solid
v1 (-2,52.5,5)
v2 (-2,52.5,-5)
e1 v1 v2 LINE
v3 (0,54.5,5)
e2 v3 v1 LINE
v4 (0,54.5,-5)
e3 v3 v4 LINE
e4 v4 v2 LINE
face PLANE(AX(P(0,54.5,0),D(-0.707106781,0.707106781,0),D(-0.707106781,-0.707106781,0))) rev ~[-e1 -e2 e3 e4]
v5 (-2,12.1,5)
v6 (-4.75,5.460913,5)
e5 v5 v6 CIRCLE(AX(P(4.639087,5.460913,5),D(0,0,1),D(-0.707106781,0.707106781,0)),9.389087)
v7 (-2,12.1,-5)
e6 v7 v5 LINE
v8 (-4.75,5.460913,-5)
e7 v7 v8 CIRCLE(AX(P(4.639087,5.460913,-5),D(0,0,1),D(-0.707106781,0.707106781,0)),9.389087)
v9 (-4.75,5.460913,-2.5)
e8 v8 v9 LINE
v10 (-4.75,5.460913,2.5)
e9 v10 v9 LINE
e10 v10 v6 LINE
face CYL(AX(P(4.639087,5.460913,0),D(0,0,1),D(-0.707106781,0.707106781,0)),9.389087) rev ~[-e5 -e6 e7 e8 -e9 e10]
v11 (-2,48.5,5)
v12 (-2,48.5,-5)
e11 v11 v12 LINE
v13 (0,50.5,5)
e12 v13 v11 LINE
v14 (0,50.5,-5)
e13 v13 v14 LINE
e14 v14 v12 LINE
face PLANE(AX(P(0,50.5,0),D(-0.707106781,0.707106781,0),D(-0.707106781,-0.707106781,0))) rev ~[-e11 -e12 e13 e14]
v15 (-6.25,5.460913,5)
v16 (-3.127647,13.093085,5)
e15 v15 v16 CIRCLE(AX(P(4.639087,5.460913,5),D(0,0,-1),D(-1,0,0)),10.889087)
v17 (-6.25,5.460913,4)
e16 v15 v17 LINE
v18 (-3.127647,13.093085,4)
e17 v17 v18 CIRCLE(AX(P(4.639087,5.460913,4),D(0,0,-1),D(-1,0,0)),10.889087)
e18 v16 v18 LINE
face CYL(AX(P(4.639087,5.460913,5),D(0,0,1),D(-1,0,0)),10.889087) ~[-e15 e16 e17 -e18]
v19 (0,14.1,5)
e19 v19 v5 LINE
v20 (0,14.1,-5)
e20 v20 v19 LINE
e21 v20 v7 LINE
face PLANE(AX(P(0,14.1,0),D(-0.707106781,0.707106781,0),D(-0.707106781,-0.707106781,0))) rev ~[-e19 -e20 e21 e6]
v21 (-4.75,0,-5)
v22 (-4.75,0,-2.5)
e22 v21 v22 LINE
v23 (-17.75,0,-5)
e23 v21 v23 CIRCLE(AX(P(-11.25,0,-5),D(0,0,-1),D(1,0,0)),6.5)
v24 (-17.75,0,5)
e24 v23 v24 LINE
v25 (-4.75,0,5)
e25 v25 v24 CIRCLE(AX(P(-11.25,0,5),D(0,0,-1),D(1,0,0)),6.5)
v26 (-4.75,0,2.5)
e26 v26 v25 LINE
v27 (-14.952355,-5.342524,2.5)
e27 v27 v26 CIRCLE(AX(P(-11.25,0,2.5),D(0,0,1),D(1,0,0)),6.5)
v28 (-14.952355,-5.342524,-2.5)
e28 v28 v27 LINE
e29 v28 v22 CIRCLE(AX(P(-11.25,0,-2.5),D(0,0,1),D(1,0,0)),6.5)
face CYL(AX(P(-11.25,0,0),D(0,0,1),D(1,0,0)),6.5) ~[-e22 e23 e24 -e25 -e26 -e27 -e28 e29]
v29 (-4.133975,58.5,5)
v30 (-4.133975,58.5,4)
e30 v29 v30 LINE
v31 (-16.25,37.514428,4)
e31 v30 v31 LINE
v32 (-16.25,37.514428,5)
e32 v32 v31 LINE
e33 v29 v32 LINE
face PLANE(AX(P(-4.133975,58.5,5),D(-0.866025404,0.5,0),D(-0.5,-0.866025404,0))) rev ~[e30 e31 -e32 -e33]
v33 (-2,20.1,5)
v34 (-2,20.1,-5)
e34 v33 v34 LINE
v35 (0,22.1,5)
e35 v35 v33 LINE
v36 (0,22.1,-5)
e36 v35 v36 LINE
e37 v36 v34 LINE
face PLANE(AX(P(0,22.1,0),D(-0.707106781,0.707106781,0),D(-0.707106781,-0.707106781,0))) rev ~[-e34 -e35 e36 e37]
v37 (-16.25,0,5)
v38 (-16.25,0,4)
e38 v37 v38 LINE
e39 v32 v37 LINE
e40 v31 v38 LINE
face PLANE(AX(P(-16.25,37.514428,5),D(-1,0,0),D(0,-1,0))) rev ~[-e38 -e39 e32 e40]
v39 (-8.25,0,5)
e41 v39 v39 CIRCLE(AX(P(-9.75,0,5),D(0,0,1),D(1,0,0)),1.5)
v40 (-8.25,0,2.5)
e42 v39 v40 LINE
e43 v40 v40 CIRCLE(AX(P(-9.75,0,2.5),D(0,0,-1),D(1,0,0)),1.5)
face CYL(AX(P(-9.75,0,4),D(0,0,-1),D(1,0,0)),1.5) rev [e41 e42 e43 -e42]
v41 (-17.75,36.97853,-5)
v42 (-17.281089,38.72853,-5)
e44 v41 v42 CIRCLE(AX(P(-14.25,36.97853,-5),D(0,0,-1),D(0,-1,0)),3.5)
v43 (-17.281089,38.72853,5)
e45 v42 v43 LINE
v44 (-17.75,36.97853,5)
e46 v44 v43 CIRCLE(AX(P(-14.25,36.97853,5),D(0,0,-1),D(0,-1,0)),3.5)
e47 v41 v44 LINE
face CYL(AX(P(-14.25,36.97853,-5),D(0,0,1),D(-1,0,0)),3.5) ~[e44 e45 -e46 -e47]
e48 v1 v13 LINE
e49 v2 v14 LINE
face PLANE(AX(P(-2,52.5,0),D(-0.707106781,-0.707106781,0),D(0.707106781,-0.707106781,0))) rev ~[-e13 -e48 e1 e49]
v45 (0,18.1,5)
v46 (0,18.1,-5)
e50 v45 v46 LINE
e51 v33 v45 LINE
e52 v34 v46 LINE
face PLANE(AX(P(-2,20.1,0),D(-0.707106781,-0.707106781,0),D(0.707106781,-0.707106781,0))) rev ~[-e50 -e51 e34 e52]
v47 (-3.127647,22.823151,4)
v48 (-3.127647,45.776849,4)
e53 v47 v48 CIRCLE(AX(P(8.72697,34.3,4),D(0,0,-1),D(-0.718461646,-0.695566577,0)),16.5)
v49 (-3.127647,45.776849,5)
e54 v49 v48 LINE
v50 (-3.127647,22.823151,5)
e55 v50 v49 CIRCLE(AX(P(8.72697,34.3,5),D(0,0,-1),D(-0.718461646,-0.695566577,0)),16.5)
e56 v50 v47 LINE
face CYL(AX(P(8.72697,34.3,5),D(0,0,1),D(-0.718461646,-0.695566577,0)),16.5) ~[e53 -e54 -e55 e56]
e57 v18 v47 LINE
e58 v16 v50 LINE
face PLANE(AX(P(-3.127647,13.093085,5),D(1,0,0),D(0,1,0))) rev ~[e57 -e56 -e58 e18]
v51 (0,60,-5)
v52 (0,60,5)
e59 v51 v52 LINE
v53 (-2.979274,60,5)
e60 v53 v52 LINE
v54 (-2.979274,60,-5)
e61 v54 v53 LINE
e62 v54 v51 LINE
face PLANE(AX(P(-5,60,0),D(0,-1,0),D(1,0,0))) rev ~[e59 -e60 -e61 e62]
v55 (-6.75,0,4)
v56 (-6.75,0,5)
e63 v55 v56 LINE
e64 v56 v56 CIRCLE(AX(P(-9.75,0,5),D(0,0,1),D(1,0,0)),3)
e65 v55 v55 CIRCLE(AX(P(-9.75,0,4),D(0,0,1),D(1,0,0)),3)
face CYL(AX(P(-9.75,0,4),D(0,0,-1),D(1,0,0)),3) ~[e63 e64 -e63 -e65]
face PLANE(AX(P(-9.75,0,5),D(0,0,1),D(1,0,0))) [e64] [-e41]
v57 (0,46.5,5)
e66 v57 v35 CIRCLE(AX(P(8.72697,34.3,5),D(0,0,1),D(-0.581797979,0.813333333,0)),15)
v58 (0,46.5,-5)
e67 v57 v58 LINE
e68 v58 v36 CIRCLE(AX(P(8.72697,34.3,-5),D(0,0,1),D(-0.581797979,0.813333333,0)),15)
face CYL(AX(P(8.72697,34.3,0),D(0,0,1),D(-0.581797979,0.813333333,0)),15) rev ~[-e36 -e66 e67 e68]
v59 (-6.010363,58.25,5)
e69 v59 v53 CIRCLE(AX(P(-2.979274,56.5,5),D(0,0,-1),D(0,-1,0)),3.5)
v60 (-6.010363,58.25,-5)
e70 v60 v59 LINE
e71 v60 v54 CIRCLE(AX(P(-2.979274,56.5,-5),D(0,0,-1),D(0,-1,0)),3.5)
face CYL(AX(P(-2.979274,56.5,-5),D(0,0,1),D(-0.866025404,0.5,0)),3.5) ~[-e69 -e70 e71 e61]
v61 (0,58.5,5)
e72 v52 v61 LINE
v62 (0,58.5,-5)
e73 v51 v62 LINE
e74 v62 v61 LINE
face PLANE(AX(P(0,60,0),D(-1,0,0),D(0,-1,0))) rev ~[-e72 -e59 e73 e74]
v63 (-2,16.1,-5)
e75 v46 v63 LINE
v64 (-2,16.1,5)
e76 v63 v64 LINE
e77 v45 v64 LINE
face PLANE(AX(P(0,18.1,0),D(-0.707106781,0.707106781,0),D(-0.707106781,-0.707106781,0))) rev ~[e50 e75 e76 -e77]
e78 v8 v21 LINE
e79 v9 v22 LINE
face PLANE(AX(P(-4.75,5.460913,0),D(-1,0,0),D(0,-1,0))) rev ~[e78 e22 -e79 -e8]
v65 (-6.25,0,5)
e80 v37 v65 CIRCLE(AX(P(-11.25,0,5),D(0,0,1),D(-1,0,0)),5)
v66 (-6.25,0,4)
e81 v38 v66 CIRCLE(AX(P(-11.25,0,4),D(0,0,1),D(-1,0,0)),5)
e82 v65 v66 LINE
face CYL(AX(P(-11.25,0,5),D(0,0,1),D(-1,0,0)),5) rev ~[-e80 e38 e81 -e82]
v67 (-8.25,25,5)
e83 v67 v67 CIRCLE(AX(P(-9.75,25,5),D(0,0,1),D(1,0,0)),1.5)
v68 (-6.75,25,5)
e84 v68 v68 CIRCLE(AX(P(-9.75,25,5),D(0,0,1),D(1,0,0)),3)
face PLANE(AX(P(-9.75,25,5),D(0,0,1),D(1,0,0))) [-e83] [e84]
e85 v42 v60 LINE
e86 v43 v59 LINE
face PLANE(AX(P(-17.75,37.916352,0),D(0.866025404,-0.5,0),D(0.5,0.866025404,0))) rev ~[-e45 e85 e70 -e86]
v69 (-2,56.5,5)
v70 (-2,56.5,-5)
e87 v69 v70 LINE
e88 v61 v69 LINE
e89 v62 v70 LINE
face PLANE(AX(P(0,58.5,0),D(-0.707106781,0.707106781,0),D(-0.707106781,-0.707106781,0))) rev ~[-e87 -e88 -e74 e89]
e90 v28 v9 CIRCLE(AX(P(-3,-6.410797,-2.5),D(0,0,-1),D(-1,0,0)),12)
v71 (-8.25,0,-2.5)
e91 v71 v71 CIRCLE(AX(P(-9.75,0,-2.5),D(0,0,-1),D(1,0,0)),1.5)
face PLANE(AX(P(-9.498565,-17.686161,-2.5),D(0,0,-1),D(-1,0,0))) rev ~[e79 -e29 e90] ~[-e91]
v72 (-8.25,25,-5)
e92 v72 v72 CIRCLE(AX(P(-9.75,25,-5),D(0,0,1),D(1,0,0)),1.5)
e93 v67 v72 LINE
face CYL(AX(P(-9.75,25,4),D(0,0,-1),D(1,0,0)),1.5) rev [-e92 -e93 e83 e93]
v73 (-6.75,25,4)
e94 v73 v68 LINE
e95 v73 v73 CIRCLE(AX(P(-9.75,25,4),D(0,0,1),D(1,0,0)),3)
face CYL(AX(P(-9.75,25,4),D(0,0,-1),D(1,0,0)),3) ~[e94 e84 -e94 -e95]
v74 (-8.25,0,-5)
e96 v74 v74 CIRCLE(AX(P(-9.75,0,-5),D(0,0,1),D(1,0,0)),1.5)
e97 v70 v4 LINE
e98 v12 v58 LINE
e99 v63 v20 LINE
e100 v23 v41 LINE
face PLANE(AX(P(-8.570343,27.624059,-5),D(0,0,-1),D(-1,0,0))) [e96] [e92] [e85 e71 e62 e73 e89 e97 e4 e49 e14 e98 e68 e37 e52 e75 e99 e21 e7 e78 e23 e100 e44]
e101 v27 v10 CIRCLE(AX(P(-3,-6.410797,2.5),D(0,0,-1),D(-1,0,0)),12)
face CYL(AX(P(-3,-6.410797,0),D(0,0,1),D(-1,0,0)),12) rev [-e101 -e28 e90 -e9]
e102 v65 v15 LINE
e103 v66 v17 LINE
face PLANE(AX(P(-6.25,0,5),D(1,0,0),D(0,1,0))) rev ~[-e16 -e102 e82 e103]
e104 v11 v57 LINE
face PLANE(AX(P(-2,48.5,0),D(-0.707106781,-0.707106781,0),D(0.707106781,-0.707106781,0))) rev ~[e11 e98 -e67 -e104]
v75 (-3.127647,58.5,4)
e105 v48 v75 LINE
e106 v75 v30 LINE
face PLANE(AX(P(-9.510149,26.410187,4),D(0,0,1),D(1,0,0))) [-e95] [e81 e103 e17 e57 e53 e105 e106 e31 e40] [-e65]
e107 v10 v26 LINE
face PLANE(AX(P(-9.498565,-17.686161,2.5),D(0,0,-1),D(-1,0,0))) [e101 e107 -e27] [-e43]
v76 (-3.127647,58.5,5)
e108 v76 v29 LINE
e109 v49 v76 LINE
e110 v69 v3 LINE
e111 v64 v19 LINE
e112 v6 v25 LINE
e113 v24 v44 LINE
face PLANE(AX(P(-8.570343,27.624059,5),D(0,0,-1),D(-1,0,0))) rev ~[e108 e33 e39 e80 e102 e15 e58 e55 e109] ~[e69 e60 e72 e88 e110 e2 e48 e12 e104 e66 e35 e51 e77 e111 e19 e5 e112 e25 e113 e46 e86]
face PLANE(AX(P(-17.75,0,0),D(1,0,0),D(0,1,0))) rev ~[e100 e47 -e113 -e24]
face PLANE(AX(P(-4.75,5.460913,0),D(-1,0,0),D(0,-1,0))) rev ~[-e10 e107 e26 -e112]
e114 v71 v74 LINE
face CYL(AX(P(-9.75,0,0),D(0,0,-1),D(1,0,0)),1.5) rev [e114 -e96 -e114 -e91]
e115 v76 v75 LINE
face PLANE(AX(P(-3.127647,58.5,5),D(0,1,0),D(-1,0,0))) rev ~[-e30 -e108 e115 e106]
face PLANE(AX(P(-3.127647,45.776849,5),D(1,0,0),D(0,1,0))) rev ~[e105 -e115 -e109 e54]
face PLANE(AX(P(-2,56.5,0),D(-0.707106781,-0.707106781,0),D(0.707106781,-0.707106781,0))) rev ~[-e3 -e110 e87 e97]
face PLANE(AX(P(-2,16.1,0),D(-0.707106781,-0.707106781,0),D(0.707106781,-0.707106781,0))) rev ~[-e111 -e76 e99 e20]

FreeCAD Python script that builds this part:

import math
import FreeCAD as App
import Part
import Sketcher
Q = App.Units.Quantity


def edges_at(feature, points):
    """Names of the edges that pass closest to the given points."""
    edges = feature.Shape.Edges
    near = lambda p: min(range(len(edges)), key=lambda i: edges[i].distToShape(Part.Vertex(*p))[0])
    return sorted({f"Edge{near(p) + 1}" for p in points})

doc = App.newDocument("Part")
body = doc.addObject("PartDesign::Body", "Body")

sketch1 = body.newObject("Sketcher::SketchObject", "Sketch")
sketch1.AttachmentSupport = (doc.getObject("XY_Plane"), [""])
sketch1.MapMode = "FlatFace"
sketch1.addGeometry([
    Part.LineSegment(App.Vector(-2, 56.5, 0), App.Vector(0, 58.5, 0)),
    Part.LineSegment(App.Vector(0, 58.5, 0), App.Vector(0, 60, 0)),
    Part.LineSegment(App.Vector(0, 60, 0), App.Vector(-5, 60, 0)),
    Part.LineSegment(App.Vector(-5, 60, 0), App.Vector(-17.8, 37.9, 0)),
    Part.LineSegment(App.Vector(-17.8, 37.9, 0), App.Vector(-17.8, 0, 0)),
    Part.ArcOfCircle(Part.Circle(App.Vector(-11.2, 0, 0), App.Vector(0, 0, 1), 6.5), math.radians(180), math.radians(360)),
    Part.LineSegment(App.Vector(-4.8, 0, 0), App.Vector(-4.8, 5.5, 0)),
    Part.ArcOfCircle(Part.Circle(App.Vector(4.6, 5.5, 0), App.Vector(0, 0, 1), 9.4), math.radians(135), math.radians(180)),
    Part.LineSegment(App.Vector(-2, 12.1, 0), App.Vector(0, 14.1, 0)),
    Part.LineSegment(App.Vector(0, 14.1, 0), App.Vector(-2, 16.1, 0)),
    Part.LineSegment(App.Vector(-2, 16.1, 0), App.Vector(0, 18.1, 0)),
    Part.LineSegment(App.Vector(0, 18.1, 0), App.Vector(-2, 20.1, 0)),
    Part.LineSegment(App.Vector(-2, 20.1, 0), App.Vector(0, 22.1, 0)),
    Part.ArcOfCircle(Part.Circle(App.Vector(8.7, 34.3, 0), App.Vector(0, 0, 1), 15), math.radians(126), math.radians(234)),
    Part.LineSegment(App.Vector(0, 46.5, 0), App.Vector(-2, 48.5, 0)),
    Part.LineSegment(App.Vector(-2, 48.5, 0), App.Vector(0, 50.5, 0)),
    Part.LineSegment(App.Vector(0, 50.5, 0), App.Vector(-2, 52.5, 0)),
    Part.LineSegment(App.Vector(-2, 52.5, 0), App.Vector(0, 54.5, 0)),
    Part.LineSegment(App.Vector(0, 54.5, 0), App.Vector(-2, 56.5, 0)),
    Part.Circle(App.Vector(-9.8, 0, 0), App.Vector(0, 0, 1), 1.5),
    Part.Circle(App.Vector(-9.8, 25, 0), App.Vector(0, 0, 1), 1.5),
], False)
sketch1.addConstraint([
    Sketcher.Constraint("Coincident", 0, 2, 1, 1),
    Sketcher.Constraint("Coincident", 1, 2, 2, 1),
    Sketcher.Constraint("Coincident", 2, 2, 3, 1),
    Sketcher.Constraint("Coincident", 3, 2, 4, 1),
    Sketcher.Constraint("Tangent", 4, 2, 5, 1),
    Sketcher.Constraint("Tangent", 5, 2, 6, 1),
    Sketcher.Constraint("Tangent", 6, 2, 7, 2),
    Sketcher.Constraint("Tangent", 7, 1, 8, 1),
    Sketcher.Constraint("Coincident", 8, 2, 9, 1),
    Sketcher.Constraint("Coincident", 9, 2, 10, 1),
    Sketcher.Constraint("Coincident", 10, 2, 11, 1),
    Sketcher.Constraint("Coincident", 11, 2, 12, 1),
    Sketcher.Constraint("Coincident", 12, 2, 13, 2),
    Sketcher.Constraint("Coincident", 13, 1, 14, 1),
    Sketcher.Constraint("Coincident", 14, 2, 15, 1),
    Sketcher.Constraint("Coincident", 15, 2, 16, 1),
    Sketcher.Constraint("Coincident", 16, 2, 17, 1),
    Sketcher.Constraint("Coincident", 17, 2, 18, 1),
    Sketcher.Constraint("Coincident", 18, 2, 0, 1),
    Sketcher.Constraint("Vertical", 1),
    Sketcher.Constraint("Horizontal", 2),
    Sketcher.Constraint("Vertical", 4),
    Sketcher.Constraint("Vertical", 6),
    Sketcher.Constraint("Equal", 19, 20),
    Sketcher.Constraint("PointOnObject", 5, 3, -1),
    Sketcher.Constraint("PointOnObject", 19, 3, -1),
    Sketcher.Constraint("PointOnObject", 0, 2, -2),
    Sketcher.Constraint("PointOnObject", 8, 2, -2),
    Sketcher.Constraint("PointOnObject", 10, 2, -2),
    Sketcher.Constraint("PointOnObject", 12, 2, -2),
    Sketcher.Constraint("PointOnObject", 13, 1, -2),
    Sketcher.Constraint("PointOnObject", 15, 2, -2),
    Sketcher.Constraint("PointOnObject", 17, 2, -2),
    Sketcher.Constraint("Parallel", 0, 8),
    Sketcher.Constraint("Perpendicular", 8, 9),
    Sketcher.Constraint("Perpendicular", 9, 10),
    Sketcher.Constraint("Perpendicular", 10, 11),
    Sketcher.Constraint("Perpendicular", 11, 12),
    Sketcher.Constraint("Perpendicular", 12, 14),
    Sketcher.Constraint("Perpendicular", 14, 15),
    Sketcher.Constraint("Perpendicular", 15, 16),
    Sketcher.Constraint("Perpendicular", 16, 17),
    Sketcher.Constraint("Perpendicular", 17, 18),
    Sketcher.Constraint("Vertical", 19, 3, 20, 3),
    Sketcher.Constraint("Vertical", 7, 1, 9, 2),
    Sketcher.Constraint("Vertical", 9, 2, 11, 2),
    Sketcher.Constraint("Vertical", 11, 2, 14, 2),
    Sketcher.Constraint("Vertical", 14, 2, 16, 2),
    Sketcher.Constraint("Vertical", 16, 2, 18, 2),
    Sketcher.Constraint("Equal", 8, 9),
    Sketcher.Constraint("Diameter", 19, Q("3 mm")),
    Sketcher.Constraint("Radius", 13, Q("15 mm")),
    Sketcher.Constraint("Radius", 5, Q("6.5 mm")),
    Sketcher.Constraint("DistanceX", 2, 2, 2, 1, Q("5 mm")),
    Sketcher.Constraint("Angle", 3, Q("-120 deg")),
    Sketcher.Constraint("DistanceY", 1, 1, 1, 2, Q("1.5 mm")),
    Sketcher.Constraint("DistanceY", -1, 1, 20, 3, Q("25 mm")),
    Sketcher.Constraint("DistanceY", -1, 1, 1, 2, Q("60 mm")),
    Sketcher.Constraint("DistanceX", 7, 1, -1, 1, Q("2 mm")),
    Sketcher.Constraint("DistanceX", 3, 2, 20, 3, Q("8 mm")),
    Sketcher.Constraint("Distance", 3, Q("25.5 mm")),
    Sketcher.Constraint("DistanceY", -1, 1, 13, 3, Q("34.3 mm")),
])
pad1 = body.newObject("PartDesign::Pad", "Pad")
pad1.Profile = sketch1
pad1.Length = 10
pad1.Midplane = True

sketch2 = body.newObject("Sketcher::SketchObject", "Sketch001")
sketch2.AttachmentSupport = (doc.getObject("XY_Plane"), [""])
sketch2.MapMode = "FlatFace"
sketch2.addGeometry([
    Part.LineSegment(App.Vector(-15, -6, 0), App.Vector(-15, -38, 0)),
    Part.LineSegment(App.Vector(-15, -38, 0), App.Vector(-5, -38, 0)),
    Part.LineSegment(App.Vector(-5, -38, 0), App.Vector(-5, 5, 0)),
    Part.ArcOfCircle(Part.Circle(App.Vector(-3, -6, 0), App.Vector(0, 0, 1), 12), math.radians(98), math.radians(180)),
], False)
sketch2.addConstraint([
    Sketcher.Constraint("Coincident", 0, 2, 1, 1),
    Sketcher.Constraint("Coincident", 1, 2, 2, 1),
    Sketcher.Constraint("Coincident", 2, 2, 3, 1),
    Sketcher.Constraint("Tangent", 3, 2, 0, 1),
    Sketcher.Constraint("Vertical", 0),
    Sketcher.Constraint("Horizontal", 1),
    Sketcher.Constraint("Vertical", 2),
    Sketcher.Constraint("Radius", 3, Q("12 mm")),
    Sketcher.Constraint("DistanceY", 0, 2, 0, 1, Q("32 mm")),
    Sketcher.Constraint("DistanceX", 3, 3, -1, 1, Q("3 mm")),
    Sketcher.Constraint("DistanceX", 1, 1, 1, 2, Q("10.25 mm")),
    Sketcher.Constraint("DistanceY", 3, 3, -1, 1, Q("6.410797 mm")),
])
pocket1 = body.newObject("PartDesign::Pocket", "Pocket")
pocket1.Profile = sketch2
pocket1.Length = 5
pocket1.Midplane = True

sketch3 = body.newObject("Sketcher::SketchObject", "Sketch002")
sketch3.AttachmentSupport = (doc.getObject("XY_Plane"), [""])
sketch3.MapMode = "FlatFace"
sketch3.AttachmentOffset = App.Placement(App.Vector(0, 0, 5), App.Rotation())
sketch3.addGeometry([
    Part.LineSegment(App.Vector(-3.1, 58.5, 0), App.Vector(-4.1, 58.5, 0)),
    Part.LineSegment(App.Vector(-4.1, 58.5, 0), App.Vector(-16.2, 37.5, 0)),
    Part.LineSegment(App.Vector(-16.2, 37.5, 0), App.Vector(-16.2, 0, 0)),
    Part.ArcOfCircle(Part.Circle(App.Vector(-11.2, 0, 0), App.Vector(0, 0, 1), 5), math.radians(180), math.radians(360)),
    Part.LineSegment(App.Vector(-6.2, 0, 0), App.Vector(-6.2, 5.5, 0)),
    Part.ArcOfCircle(Part.Circle(App.Vector(4.6, 5.5, 0), App.Vector(0, 0, 1), 10.9), math.radians(136), math.radians(180)),
    Part.LineSegment(App.Vector(-3.1, 13.1, 0), App.Vector(-3.1, 22.8, 0)),
    Part.ArcOfCircle(Part.Circle(App.Vector(8.7, 34.3, 0), App.Vector(0, 0, 1), 16.5), math.radians(136), math.radians(224)),
    Part.LineSegment(App.Vector(-3.1, 45.8, 0), App.Vector(-3.1, 58.5, 0)),
], False)
sketch3.addConstraint([
    Sketcher.Constraint("Coincident", 0, 2, 1, 1),
    Sketcher.Constraint("Coincident", 1, 2, 2, 1),
    Sketcher.Constraint("Tangent", 2, 2, 3, 1),
    Sketcher.Constraint("Tangent", 3, 2, 4, 1),
    Sketcher.Constraint("Tangent", 4, 2, 5, 2),
    Sketcher.Constraint("Coincident", 5, 1, 6, 1),
    Sketcher.Constraint("Coincident", 6, 2, 7, 2),
    Sketcher.Constraint("Coincident", 7, 1, 8, 1),
    Sketcher.Constraint("Coincident", 8, 2, 0, 1),
    Sketcher.Constraint("Horizontal", 0),
    Sketcher.Constraint("Vertical", 2),
    Sketcher.Constraint("Vertical", 4),
    Sketcher.Constraint("Vertical", 6),
    Sketcher.Constraint("Vertical", 8),
    Sketcher.Constraint("PointOnObject", 3, 3, -1),
    Sketcher.Constraint("Vertical", 6, 2, 7, 1),
    Sketcher.Constraint("Radius", 3, Q("5 mm")),
    Sketcher.Constraint("Radius", 7, Q("16.5 mm")),
    Sketcher.Constraint("Angle", 1, Q("-120 deg")),
    Sketcher.Constraint("DistanceY", -1, 1, 7, 3, Q("34.3 mm")),
    Sketcher.Constraint("DistanceY", -1, 1, 0, 2, Q("58.5 mm")),
    Sketcher.Constraint("DistanceX", 3, 3, -1, 1, Q("11.25 mm")),
    Sketcher.Constraint("Radius", 5, Q("10.889087 mm")),
    Sketcher.Constraint("DistanceY", 2, 2, 2, 1, Q("37.514428 mm")),
    Sketcher.Constraint("DistanceY", 8, 1, 8, 2, Q("12.723151 mm")),
    Sketcher.Constraint("DistanceX", 0, 2, 0, 1, Q("1.006327 mm")),
    Sketcher.Constraint("DistanceY", 4, 1, 4, 2, Q("5.460913 mm")),
])
pocket2 = body.newObject("PartDesign::Pocket", "Pocket001")
pocket2.Profile = sketch3
pocket2.Length = 1

sketch4 = body.newObject("Sketcher::SketchObject", "Sketch003")
sketch4.AttachmentSupport = (doc.getObject("XY_Plane"), [""])
sketch4.MapMode = "FlatFace"
sketch4.AttachmentOffset = App.Placement(App.Vector(0, 0, 4), App.Rotation())
sketch4.addGeometry([
    Part.Circle(App.Vector(-9.8, 0, 0), App.Vector(0, 0, 1), 3),
    Part.Circle(App.Vector(-9.8, 0, 0), App.Vector(0, 0, 1), 1.5),
    Part.Circle(App.Vector(-9.8, 25, 0), App.Vector(0, 0, 1), 3),
    Part.Circle(App.Vector(-9.8, 25, 0), App.Vector(0, 0, 1), 1.5),
], False)
sketch4.addConstraint([
    Sketcher.Constraint("Coincident", 1, 3, 0, 3),
    Sketcher.Constraint("Coincident", 3, 3, 2, 3),
    Sketcher.Constraint("Equal", 0, 2),
    Sketcher.Constraint("Equal", 1, 3),
    Sketcher.Constraint("PointOnObject", 0, 3, -1),
    Sketcher.Constraint("Vertical", 1, 3, 2, 3),
    Sketcher.Constraint("Diameter", 0, Q("6 mm")),
    Sketcher.Constraint("Diameter", 1, Q("3 mm")),
    Sketcher.Constraint("DistanceY", -1, 1, 2, 3, Q("25 mm")),
    Sketcher.Constraint("DistanceX", 0, 3, -1, 1, Q("9.75 mm")),
])
pad2 = body.newObject("PartDesign::Pad", "Pad001")
pad2.Profile = sketch4
pad2.Length = 1
doc.recompute()

fillet = body.newObject("PartDesign::Fillet", "Fillet")
fillet.Base = (pad2, edges_at(pad2, [(-17.75, 37.916, 0), (-5, 60, 0)]))
fillet.Radius = 3.5

doc.recompute()
